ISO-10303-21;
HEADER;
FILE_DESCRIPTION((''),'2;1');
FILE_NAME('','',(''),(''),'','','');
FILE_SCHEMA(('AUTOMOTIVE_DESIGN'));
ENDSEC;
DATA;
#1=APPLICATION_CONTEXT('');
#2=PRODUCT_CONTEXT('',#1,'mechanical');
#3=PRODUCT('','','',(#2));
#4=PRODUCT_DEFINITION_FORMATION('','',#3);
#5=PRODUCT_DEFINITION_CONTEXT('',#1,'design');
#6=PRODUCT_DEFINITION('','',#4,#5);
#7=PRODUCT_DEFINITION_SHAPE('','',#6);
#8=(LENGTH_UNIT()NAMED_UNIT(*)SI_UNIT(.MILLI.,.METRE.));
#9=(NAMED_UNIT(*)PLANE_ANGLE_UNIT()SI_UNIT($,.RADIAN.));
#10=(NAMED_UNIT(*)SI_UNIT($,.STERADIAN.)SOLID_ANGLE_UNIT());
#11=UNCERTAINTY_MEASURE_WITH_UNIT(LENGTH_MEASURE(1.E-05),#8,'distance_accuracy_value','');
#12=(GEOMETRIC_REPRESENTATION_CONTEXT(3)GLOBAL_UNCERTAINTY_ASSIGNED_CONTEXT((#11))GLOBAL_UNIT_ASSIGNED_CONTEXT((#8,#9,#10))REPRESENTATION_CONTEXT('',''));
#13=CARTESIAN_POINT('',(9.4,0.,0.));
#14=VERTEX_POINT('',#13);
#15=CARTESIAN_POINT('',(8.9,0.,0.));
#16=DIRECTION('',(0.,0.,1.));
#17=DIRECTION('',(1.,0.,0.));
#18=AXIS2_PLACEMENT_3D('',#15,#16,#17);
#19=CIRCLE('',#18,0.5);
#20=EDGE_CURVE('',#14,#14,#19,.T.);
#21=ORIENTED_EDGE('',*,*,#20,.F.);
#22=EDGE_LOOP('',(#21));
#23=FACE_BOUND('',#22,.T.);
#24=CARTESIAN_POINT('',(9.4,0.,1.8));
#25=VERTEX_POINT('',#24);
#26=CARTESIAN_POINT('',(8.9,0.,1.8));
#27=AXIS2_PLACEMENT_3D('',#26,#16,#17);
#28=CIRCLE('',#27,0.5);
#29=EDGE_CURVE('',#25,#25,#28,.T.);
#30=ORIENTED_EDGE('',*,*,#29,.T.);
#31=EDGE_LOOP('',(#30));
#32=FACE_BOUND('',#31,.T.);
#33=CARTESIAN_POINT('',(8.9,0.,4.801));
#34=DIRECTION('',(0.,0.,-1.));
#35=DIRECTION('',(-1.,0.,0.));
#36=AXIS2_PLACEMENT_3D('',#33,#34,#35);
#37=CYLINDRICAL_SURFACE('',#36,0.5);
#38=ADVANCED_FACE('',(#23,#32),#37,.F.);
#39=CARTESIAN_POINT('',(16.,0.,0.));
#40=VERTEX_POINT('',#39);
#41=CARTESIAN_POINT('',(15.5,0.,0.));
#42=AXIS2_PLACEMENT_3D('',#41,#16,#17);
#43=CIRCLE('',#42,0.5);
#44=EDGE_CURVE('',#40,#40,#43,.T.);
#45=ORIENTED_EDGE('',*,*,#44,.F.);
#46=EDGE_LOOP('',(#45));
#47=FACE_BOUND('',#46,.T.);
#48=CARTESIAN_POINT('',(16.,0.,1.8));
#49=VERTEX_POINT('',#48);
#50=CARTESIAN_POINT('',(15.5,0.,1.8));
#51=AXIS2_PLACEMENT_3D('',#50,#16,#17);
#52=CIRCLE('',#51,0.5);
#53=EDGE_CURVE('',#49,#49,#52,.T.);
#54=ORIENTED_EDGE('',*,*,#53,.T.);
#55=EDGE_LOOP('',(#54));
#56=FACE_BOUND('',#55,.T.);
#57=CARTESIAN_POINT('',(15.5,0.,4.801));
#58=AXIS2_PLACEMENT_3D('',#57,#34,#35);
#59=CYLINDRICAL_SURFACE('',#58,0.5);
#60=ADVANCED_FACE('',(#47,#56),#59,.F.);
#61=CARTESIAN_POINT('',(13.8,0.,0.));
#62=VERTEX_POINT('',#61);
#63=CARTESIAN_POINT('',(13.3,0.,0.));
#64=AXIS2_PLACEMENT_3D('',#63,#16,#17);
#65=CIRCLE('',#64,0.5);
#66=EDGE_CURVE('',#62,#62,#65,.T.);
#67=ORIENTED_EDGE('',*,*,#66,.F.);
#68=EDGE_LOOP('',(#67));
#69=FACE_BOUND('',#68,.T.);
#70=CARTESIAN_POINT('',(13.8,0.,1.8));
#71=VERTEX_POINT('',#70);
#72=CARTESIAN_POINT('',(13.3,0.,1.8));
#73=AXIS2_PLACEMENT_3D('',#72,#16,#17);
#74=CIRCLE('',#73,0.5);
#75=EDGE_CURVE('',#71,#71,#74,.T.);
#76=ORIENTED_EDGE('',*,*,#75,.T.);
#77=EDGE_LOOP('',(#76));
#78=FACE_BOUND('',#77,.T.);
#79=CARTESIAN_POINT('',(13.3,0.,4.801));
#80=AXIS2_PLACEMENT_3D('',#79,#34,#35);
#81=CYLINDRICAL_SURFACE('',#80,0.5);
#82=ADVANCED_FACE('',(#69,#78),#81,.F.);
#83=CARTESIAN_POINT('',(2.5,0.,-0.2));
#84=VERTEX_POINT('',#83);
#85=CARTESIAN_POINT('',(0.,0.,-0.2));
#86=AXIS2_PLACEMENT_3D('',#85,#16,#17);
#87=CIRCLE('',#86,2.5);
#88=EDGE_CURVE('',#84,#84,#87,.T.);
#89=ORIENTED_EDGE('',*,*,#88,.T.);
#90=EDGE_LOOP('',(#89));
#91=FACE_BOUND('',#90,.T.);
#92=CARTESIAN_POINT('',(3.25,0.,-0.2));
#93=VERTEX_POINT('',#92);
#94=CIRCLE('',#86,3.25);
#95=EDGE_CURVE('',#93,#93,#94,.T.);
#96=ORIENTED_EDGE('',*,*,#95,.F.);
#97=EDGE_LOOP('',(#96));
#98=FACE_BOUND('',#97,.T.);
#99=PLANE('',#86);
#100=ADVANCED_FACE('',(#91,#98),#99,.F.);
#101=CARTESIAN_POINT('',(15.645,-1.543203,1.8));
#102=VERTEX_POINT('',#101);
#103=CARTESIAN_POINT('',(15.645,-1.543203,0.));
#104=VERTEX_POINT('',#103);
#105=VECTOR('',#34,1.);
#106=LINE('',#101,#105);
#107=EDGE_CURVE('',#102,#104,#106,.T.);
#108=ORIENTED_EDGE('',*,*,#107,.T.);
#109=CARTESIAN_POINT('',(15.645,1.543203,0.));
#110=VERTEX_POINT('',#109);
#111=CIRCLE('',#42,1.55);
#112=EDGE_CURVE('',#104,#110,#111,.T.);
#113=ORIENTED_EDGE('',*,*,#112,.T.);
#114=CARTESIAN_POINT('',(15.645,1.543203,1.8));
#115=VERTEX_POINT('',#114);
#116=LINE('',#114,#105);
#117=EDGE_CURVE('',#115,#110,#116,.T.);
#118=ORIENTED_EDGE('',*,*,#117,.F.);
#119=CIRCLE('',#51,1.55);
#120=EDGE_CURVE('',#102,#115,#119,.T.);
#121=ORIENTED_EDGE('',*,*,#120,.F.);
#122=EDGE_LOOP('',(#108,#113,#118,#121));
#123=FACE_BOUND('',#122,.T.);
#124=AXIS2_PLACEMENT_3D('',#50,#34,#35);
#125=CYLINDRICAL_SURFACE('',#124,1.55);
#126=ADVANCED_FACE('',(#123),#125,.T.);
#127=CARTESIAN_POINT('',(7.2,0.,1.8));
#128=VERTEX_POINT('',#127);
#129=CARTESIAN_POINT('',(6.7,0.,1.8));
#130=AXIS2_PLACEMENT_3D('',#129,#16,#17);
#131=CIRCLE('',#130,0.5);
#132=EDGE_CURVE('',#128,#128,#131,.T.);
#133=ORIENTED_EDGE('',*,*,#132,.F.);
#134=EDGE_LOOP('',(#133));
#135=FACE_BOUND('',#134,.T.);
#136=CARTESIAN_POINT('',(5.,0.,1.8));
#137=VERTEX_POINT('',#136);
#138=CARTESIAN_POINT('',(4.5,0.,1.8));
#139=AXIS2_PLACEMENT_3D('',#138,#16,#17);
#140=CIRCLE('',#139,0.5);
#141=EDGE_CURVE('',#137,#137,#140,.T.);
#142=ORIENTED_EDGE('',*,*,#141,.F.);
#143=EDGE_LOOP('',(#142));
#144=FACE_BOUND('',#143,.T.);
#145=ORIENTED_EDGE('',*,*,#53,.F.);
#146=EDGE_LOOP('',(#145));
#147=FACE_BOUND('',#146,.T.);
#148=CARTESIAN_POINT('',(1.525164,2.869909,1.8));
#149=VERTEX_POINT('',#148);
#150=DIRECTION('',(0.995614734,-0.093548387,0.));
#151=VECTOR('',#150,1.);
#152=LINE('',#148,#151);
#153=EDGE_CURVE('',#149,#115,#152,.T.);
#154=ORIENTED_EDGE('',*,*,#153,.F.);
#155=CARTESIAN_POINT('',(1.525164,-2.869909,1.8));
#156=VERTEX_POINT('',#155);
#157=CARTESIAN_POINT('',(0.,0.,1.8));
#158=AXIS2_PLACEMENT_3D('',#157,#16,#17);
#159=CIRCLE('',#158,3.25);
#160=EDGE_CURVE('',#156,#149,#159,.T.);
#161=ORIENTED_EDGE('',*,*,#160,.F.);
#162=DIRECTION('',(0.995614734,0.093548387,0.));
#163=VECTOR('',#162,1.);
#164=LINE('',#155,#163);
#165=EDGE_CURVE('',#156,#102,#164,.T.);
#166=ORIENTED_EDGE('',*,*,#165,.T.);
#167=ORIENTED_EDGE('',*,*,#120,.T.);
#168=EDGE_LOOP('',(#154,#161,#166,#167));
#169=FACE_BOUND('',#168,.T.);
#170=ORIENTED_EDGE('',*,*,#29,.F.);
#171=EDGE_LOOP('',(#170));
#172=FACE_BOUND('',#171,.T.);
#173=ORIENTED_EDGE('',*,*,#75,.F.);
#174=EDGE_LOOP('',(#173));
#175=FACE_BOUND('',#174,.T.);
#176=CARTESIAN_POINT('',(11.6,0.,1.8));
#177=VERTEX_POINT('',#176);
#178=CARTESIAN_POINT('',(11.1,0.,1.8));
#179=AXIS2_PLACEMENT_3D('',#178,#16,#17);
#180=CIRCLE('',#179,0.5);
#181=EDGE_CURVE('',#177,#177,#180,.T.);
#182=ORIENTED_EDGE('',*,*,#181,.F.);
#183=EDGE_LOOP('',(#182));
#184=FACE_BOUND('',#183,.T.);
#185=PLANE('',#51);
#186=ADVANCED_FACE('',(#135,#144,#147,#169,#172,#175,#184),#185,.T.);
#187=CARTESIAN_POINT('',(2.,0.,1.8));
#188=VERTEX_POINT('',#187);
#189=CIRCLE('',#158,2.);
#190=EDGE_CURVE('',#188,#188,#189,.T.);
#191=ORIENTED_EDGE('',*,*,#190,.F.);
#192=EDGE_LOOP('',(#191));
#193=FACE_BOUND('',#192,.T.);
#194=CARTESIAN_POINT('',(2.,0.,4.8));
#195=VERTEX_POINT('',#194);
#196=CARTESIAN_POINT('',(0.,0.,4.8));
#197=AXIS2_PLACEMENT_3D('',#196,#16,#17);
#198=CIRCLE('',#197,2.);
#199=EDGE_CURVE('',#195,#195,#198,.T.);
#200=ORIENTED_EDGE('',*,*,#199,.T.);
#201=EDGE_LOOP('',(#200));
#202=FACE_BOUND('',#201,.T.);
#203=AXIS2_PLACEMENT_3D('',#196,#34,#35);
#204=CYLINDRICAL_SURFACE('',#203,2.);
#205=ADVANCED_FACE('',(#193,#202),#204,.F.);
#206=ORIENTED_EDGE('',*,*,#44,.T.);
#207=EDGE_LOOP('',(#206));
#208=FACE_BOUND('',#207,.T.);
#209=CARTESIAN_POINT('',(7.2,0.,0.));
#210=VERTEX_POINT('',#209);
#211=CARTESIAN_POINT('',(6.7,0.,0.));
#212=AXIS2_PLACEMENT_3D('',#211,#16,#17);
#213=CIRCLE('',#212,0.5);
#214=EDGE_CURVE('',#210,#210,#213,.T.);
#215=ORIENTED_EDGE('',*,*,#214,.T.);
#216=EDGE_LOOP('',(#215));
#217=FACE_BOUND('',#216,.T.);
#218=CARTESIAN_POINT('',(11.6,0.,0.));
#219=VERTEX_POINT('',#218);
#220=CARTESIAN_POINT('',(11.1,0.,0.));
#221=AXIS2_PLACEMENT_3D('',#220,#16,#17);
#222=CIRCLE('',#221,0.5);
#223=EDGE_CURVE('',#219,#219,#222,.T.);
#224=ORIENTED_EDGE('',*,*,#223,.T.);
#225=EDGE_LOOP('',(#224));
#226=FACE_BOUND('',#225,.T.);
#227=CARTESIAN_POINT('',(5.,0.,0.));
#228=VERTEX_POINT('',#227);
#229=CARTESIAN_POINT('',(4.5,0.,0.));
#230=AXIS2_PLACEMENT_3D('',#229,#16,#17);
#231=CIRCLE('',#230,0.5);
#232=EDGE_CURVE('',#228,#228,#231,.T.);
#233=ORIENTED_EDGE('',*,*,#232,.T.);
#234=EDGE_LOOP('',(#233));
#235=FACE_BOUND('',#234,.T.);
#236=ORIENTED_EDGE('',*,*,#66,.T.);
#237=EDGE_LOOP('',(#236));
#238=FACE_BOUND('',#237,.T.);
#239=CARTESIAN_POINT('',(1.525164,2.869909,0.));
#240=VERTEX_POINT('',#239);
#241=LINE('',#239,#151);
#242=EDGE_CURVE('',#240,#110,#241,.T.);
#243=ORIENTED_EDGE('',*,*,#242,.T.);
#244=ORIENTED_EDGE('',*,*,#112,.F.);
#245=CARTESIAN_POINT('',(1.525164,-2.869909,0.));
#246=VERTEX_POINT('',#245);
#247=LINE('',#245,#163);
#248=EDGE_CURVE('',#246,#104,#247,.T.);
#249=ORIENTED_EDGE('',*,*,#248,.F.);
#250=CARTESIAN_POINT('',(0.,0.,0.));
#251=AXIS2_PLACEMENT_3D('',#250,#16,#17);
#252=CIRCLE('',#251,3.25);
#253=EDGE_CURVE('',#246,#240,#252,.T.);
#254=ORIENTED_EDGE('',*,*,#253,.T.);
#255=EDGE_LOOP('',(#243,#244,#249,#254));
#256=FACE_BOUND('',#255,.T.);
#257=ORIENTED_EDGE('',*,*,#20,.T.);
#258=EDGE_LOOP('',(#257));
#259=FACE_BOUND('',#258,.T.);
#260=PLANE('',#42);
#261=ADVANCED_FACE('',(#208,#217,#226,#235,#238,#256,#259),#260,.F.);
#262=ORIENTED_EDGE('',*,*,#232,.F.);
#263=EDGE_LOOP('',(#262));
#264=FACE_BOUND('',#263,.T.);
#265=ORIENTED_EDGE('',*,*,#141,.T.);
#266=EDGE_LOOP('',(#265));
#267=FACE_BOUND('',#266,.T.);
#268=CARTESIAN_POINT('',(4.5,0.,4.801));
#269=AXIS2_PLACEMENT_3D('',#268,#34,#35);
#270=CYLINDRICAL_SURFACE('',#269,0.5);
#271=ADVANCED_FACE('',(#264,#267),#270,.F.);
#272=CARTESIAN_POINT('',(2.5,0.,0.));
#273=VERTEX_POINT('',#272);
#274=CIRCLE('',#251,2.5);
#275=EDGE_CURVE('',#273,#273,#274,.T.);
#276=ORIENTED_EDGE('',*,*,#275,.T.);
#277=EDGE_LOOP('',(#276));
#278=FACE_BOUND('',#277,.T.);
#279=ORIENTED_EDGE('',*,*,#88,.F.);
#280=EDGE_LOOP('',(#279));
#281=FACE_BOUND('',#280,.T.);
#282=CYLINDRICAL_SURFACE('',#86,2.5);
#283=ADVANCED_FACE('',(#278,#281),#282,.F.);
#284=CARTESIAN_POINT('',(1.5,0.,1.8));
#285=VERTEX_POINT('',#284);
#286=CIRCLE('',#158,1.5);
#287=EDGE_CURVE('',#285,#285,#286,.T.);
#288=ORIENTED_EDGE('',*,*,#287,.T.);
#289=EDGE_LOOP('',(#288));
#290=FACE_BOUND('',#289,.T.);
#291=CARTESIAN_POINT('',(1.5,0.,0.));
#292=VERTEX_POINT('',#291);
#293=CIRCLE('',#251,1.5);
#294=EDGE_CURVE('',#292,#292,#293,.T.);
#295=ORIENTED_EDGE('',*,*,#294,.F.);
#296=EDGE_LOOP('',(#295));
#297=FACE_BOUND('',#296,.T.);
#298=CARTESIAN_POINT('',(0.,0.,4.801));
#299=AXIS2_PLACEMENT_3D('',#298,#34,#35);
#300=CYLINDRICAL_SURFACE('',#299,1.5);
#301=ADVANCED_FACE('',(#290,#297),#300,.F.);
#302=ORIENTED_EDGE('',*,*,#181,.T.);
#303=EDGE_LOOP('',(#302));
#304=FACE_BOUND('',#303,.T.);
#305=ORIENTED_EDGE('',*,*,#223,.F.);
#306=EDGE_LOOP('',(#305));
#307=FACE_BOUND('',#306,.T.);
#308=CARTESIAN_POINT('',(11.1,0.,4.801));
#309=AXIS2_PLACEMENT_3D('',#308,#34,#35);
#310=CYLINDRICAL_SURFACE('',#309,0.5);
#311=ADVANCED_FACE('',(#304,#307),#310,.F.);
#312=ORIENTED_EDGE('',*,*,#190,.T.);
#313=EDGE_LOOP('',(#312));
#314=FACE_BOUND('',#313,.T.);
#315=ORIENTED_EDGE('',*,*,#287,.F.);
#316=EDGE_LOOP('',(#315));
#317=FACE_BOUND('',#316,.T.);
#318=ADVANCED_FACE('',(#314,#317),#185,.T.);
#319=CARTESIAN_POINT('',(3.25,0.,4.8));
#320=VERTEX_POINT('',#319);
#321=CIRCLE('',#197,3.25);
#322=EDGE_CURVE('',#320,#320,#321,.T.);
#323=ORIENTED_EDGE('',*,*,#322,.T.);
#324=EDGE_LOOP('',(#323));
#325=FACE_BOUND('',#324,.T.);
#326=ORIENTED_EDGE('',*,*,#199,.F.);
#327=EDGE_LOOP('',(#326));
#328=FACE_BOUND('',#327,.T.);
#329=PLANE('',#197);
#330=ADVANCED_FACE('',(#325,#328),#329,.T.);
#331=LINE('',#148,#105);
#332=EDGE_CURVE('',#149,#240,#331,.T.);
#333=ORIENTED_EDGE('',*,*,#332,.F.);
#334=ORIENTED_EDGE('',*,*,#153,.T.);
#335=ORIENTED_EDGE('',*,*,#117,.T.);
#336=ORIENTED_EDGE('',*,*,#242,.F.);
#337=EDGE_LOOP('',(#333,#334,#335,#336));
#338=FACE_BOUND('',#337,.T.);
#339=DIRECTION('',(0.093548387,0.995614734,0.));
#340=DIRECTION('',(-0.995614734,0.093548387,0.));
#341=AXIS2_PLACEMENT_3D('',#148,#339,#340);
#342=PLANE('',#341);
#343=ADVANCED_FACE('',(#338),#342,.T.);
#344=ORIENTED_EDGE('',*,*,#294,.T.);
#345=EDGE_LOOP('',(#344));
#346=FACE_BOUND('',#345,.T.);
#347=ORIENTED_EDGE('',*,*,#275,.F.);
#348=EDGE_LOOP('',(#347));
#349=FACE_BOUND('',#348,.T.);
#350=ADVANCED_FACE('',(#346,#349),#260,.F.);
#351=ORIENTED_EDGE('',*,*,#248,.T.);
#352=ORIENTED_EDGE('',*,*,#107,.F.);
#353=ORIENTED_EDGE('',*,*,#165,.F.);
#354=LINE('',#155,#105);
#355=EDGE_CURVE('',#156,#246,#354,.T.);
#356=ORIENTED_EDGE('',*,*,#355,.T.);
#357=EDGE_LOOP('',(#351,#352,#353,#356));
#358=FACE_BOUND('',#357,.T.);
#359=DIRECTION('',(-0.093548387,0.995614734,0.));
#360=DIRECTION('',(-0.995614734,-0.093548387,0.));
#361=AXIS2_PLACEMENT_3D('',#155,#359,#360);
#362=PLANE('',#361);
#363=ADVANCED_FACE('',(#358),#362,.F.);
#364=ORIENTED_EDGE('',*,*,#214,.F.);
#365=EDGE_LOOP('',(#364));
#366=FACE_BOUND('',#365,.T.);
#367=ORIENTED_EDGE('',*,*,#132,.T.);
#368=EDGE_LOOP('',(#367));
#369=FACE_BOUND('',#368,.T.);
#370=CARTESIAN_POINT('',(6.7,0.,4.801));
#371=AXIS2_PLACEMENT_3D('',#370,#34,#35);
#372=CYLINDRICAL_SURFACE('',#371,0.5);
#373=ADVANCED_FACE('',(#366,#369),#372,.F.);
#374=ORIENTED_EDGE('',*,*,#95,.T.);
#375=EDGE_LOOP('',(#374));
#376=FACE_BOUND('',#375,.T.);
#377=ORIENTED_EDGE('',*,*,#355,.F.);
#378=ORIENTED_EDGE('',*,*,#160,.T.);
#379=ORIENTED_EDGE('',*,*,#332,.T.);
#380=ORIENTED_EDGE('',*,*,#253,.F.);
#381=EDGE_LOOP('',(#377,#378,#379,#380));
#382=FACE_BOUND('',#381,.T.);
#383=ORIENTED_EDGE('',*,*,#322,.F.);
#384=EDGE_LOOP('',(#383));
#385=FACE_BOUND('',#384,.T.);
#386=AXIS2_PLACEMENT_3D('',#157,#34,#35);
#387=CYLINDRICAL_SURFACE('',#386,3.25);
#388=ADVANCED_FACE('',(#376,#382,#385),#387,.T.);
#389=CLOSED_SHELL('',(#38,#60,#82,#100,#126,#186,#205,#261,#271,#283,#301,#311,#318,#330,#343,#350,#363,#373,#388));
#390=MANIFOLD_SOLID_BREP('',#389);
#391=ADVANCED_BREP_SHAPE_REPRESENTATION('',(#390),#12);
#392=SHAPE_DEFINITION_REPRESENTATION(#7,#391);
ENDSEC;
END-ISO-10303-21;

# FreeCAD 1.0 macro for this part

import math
import FreeCAD as App
import Part
import Sketcher

doc = App.newDocument("Part")
body = doc.addObject("PartDesign::Body", "Body")

# Sketch on XY plane
sketch1 = body.newObject("Sketcher::SketchObject", "Sketch")
sketch1.AttachmentSupport = (doc.getObject("XY_Plane"), [""])
sketch1.MapMode = "FlatFace"
sketch1.addGeometry([
    Part.LineSegment(App.Vector(15.6, 1.5, 0), App.Vector(1.5, 2.9, 0)),
    Part.ArcOfCircle(Part.Circle(App.Vector(0, 0, 0), App.Vector(0, 0, 1), 3.2), math.radians(62), math.radians(298)),
    Part.LineSegment(App.Vector(1.5, -2.9, 0), App.Vector(15.6, -1.5, 0)),
    Part.ArcOfCircle(Part.Circle(App.Vector(15.5, 0, 0), App.Vector(0, 0, 1), 1.6), math.radians(-85), math.radians(85)),
], False)
sketch1.addConstraint([
    Sketcher.Constraint("Coincident", 0, 2, 1, 1),
    Sketcher.Constraint("Coincident", 1, 2, 2, 1),
    Sketcher.Constraint("Tangent", 2, 2, 3, 1),
    Sketcher.Constraint("Tangent", 3, 2, 0, 1),
    Sketcher.Constraint("Coincident", 1, 3, -1, 1),
    Sketcher.Constraint("Symmetric", 2, 2, 3, 2, -1),
    Sketcher.Constraint("Radius", 1, 3.25),
    Sketcher.Constraint("Radius", 3, 1.55),
    Sketcher.Constraint("DistanceX", -1, 1, 3, 3, 15.5),
    Sketcher.Constraint("DistanceX", -1, 1, 2, 2, 15.645),
])
pad1 = body.newObject("PartDesign::Pad", "Pad")
pad1.Profile = sketch1
pad1.Length = 1.8

# Sketch on XY plane
sketch2 = body.newObject("Sketcher::SketchObject", "Sketch001")
sketch2.AttachmentSupport = (doc.getObject("XY_Plane"), [""])
sketch2.MapMode = "FlatFace"
sketch2.addGeometry([
    Part.Circle(App.Vector(0, 0, 0), App.Vector(0, 0, 1), 3.2),
    Part.Circle(App.Vector(0, 0, 0), App.Vector(0, 0, 1), 2.5),
], False)
sketch2.addConstraint([
    Sketcher.Constraint("Coincident", 0, 3, -1, 1),
    Sketcher.Constraint("Coincident", 1, 3, -1, 1),
    Sketcher.Constraint("Diameter", 1, 5.0),
    Sketcher.Constraint("Diameter", 0, 6.5),
])
pad2 = body.newObject("PartDesign::Pad", "Pad001")
pad2.Profile = sketch2
pad2.Length = 0.2
pad2.Reversed = True

# Sketch on XY plane
sketch3 = body.newObject("Sketcher::SketchObject", "Sketch002")
sketch3.AttachmentSupport = (doc.getObject("XY_Plane"), [""])
sketch3.MapMode = "FlatFace"
sketch3.AttachmentOffset = App.Placement(App.Vector(0, 0, 1.8), App.Rotation())
sketch3.addGeometry([
    Part.Circle(App.Vector(0, 0, 0), App.Vector(0, 0, 1), 3.2),
    Part.Circle(App.Vector(0, 0, 0), App.Vector(0, 0, 1), 2),
], False)
sketch3.addConstraint([
    Sketcher.Constraint("Coincident", 0, 3, -1, 1),
    Sketcher.Constraint("Coincident", 1, 3, -1, 1),
    Sketcher.Constraint("Diameter", 1, 4.0),
    Sketcher.Constraint("Diameter", 0, 6.5),
])
pad3 = body.newObject("PartDesign::Pad", "Pad002")
pad3.Profile = sketch3
pad3.Length = 3

# Sketch on XY plane
sketch4 = body.newObject("Sketcher::SketchObject", "Sketch003")
sketch4.AttachmentSupport = (doc.getObject("XY_Plane"), [""])
sketch4.MapMode = "FlatFace"
sketch4.addGeometry(Part.Circle(App.Vector(0, 0, 0), App.Vector(0, 0, 1), 1.5), False)
sketch4.addConstraint([
    Sketcher.Constraint("Coincident", 0, 3, -1, 1),
    Sketcher.Constraint("Diameter", 0, 3.0),
])
pocket1 = body.newObject("PartDesign::Pocket", "Pocket")
pocket1.Profile = sketch4
pocket1.Type = "UpToFirst"
pocket1.Reversed = True

# Sketch on XY plane
sketch5 = body.newObject("Sketcher::SketchObject", "Sketch004")
sketch5.AttachmentSupport = (doc.getObject("XY_Plane"), [""])
sketch5.MapMode = "FlatFace"
sketch5.addGeometry(Part.Circle(App.Vector(15.5, 0, 0), App.Vector(0, 0, 1), 0.5), False)
sketch5.addConstraint([
    Sketcher.Constraint("PointOnObject", 0, 3, -1),
    Sketcher.Constraint("Diameter", 0, 1.0),
    Sketcher.Constraint("DistanceX", -1, 1, 0, 3, 15.5),
])
pocket2 = body.newObject("PartDesign::Pocket", "Pocket001")
pocket2.Profile = sketch5
pocket2.Type = "UpToFirst"
pocket2.Reversed = True

# Sketch on XY plane
sketch6 = body.newObject("Sketcher::SketchObject", "Sketch005")
sketch6.AttachmentSupport = (doc.getObject("XY_Plane"), [""])
sketch6.MapMode = "FlatFace"
sketch6.addGeometry(Part.Circle(App.Vector(13.3, 0, 0), App.Vector(0, 0, 1), 0.5), False)
sketch6.addConstraint([
    Sketcher.Constraint("PointOnObject", 0, 3, -1),
    Sketcher.Constraint("Diameter", 0, 1.0),
    Sketcher.Constraint("DistanceX", -1, 1, 0, 3, 13.3),
])
pocket3 = body.newObject("PartDesign::Pocket", "Pocket002")
pocket3.Profile = sketch6
pocket3.Type = "UpToFirst"
pocket3.Reversed = True

# Sketch on XY plane
sketch7 = body.newObject("Sketcher::SketchObject", "Sketch006")
sketch7.AttachmentSupport = (doc.getObject("XY_Plane"), [""])
sketch7.MapMode = "FlatFace"
sketch7.addGeometry(Part.Circle(App.Vector(11.1, 0, 0), App.Vector(0, 0, 1), 0.5), False)
sketch7.addConstraint([
    Sketcher.Constraint("PointOnObject", 0, 3, -1),
    Sketcher.Constraint("Diameter", 0, 1.0),
    Sketcher.Constraint("DistanceX", -1, 1, 0, 3, 11.1),
])
pocket4 = body.newObject("PartDesign::Pocket", "Pocket003")
pocket4.Profile = sketch7
pocket4.Type = "UpToFirst"
pocket4.Reversed = True

# Sketch on XY plane
sketch8 = body.newObject("Sketcher::SketchObject", "Sketch007")
sketch8.AttachmentSupport = (doc.getObject("XY_Plane"), [""])
sketch8.MapMode = "FlatFace"
sketch8.addGeometry(Part.Circle(App.Vector(8.9, 0, 0), App.Vector(0, 0, 1), 0.5), False)
sketch8.addConstraint([
    Sketcher.Constraint("PointOnObject", 0, 3, -1),
    Sketcher.Constraint("Diameter", 0, 1.0),
    Sketcher.Constraint("DistanceX", -1, 1, 0, 3, 8.9),
])
pocket5 = body.newObject("PartDesign::Pocket", "Pocket004")
pocket5.Profile = sketch8
pocket5.Type = "UpToFirst"
pocket5.Reversed = True

# Sketch on XY plane
sketch9 = body.newObject("Sketcher::SketchObject", "Sketch008")
sketch9.AttachmentSupport = (doc.getObject("XY_Plane"), [""])
sketch9.MapMode = "FlatFace"
sketch9.addGeometry(Part.Circle(App.Vector(6.7, 0, 0), App.Vector(0, 0, 1), 0.5), False)
sketch9.addConstraint([
    Sketcher.Constraint("PointOnObject", 0, 3, -1),
    Sketcher.Constraint("Diameter", 0, 1.0),
    Sketcher.Constraint("DistanceX", -1, 1, 0, 3, 6.7),
])
pocket6 = body.newObject("PartDesign::Pocket", "Pocket005")
pocket6.Profile = sketch9
pocket6.Type = "UpToFirst"
pocket6.Reversed = True

# Sketch on XY plane
sketch10 = body.newObject("Sketcher::SketchObject", "Sketch009")
sketch10.AttachmentSupport = (doc.getObject("XY_Plane"), [""])
sketch10.MapMode = "FlatFace"
sketch10.addGeometry(Part.Circle(App.Vector(4.5, 0, 0), App.Vector(0, 0, 1), 0.5), False)
sketch10.addConstraint([
    Sketcher.Constraint("PointOnObject", 0, 3, -1),
    Sketcher.Constraint("Diameter", 0, 1.0),
    Sketcher.Constraint("DistanceX", -1, 1, 0, 3, 4.5),
])
pocket7 = body.newObject("PartDesign::Pocket", "Pocket006")
pocket7.Profile = sketch10
pocket7.Type = "UpToFirst"
pocket7.Reversed = True

doc.recompute()
